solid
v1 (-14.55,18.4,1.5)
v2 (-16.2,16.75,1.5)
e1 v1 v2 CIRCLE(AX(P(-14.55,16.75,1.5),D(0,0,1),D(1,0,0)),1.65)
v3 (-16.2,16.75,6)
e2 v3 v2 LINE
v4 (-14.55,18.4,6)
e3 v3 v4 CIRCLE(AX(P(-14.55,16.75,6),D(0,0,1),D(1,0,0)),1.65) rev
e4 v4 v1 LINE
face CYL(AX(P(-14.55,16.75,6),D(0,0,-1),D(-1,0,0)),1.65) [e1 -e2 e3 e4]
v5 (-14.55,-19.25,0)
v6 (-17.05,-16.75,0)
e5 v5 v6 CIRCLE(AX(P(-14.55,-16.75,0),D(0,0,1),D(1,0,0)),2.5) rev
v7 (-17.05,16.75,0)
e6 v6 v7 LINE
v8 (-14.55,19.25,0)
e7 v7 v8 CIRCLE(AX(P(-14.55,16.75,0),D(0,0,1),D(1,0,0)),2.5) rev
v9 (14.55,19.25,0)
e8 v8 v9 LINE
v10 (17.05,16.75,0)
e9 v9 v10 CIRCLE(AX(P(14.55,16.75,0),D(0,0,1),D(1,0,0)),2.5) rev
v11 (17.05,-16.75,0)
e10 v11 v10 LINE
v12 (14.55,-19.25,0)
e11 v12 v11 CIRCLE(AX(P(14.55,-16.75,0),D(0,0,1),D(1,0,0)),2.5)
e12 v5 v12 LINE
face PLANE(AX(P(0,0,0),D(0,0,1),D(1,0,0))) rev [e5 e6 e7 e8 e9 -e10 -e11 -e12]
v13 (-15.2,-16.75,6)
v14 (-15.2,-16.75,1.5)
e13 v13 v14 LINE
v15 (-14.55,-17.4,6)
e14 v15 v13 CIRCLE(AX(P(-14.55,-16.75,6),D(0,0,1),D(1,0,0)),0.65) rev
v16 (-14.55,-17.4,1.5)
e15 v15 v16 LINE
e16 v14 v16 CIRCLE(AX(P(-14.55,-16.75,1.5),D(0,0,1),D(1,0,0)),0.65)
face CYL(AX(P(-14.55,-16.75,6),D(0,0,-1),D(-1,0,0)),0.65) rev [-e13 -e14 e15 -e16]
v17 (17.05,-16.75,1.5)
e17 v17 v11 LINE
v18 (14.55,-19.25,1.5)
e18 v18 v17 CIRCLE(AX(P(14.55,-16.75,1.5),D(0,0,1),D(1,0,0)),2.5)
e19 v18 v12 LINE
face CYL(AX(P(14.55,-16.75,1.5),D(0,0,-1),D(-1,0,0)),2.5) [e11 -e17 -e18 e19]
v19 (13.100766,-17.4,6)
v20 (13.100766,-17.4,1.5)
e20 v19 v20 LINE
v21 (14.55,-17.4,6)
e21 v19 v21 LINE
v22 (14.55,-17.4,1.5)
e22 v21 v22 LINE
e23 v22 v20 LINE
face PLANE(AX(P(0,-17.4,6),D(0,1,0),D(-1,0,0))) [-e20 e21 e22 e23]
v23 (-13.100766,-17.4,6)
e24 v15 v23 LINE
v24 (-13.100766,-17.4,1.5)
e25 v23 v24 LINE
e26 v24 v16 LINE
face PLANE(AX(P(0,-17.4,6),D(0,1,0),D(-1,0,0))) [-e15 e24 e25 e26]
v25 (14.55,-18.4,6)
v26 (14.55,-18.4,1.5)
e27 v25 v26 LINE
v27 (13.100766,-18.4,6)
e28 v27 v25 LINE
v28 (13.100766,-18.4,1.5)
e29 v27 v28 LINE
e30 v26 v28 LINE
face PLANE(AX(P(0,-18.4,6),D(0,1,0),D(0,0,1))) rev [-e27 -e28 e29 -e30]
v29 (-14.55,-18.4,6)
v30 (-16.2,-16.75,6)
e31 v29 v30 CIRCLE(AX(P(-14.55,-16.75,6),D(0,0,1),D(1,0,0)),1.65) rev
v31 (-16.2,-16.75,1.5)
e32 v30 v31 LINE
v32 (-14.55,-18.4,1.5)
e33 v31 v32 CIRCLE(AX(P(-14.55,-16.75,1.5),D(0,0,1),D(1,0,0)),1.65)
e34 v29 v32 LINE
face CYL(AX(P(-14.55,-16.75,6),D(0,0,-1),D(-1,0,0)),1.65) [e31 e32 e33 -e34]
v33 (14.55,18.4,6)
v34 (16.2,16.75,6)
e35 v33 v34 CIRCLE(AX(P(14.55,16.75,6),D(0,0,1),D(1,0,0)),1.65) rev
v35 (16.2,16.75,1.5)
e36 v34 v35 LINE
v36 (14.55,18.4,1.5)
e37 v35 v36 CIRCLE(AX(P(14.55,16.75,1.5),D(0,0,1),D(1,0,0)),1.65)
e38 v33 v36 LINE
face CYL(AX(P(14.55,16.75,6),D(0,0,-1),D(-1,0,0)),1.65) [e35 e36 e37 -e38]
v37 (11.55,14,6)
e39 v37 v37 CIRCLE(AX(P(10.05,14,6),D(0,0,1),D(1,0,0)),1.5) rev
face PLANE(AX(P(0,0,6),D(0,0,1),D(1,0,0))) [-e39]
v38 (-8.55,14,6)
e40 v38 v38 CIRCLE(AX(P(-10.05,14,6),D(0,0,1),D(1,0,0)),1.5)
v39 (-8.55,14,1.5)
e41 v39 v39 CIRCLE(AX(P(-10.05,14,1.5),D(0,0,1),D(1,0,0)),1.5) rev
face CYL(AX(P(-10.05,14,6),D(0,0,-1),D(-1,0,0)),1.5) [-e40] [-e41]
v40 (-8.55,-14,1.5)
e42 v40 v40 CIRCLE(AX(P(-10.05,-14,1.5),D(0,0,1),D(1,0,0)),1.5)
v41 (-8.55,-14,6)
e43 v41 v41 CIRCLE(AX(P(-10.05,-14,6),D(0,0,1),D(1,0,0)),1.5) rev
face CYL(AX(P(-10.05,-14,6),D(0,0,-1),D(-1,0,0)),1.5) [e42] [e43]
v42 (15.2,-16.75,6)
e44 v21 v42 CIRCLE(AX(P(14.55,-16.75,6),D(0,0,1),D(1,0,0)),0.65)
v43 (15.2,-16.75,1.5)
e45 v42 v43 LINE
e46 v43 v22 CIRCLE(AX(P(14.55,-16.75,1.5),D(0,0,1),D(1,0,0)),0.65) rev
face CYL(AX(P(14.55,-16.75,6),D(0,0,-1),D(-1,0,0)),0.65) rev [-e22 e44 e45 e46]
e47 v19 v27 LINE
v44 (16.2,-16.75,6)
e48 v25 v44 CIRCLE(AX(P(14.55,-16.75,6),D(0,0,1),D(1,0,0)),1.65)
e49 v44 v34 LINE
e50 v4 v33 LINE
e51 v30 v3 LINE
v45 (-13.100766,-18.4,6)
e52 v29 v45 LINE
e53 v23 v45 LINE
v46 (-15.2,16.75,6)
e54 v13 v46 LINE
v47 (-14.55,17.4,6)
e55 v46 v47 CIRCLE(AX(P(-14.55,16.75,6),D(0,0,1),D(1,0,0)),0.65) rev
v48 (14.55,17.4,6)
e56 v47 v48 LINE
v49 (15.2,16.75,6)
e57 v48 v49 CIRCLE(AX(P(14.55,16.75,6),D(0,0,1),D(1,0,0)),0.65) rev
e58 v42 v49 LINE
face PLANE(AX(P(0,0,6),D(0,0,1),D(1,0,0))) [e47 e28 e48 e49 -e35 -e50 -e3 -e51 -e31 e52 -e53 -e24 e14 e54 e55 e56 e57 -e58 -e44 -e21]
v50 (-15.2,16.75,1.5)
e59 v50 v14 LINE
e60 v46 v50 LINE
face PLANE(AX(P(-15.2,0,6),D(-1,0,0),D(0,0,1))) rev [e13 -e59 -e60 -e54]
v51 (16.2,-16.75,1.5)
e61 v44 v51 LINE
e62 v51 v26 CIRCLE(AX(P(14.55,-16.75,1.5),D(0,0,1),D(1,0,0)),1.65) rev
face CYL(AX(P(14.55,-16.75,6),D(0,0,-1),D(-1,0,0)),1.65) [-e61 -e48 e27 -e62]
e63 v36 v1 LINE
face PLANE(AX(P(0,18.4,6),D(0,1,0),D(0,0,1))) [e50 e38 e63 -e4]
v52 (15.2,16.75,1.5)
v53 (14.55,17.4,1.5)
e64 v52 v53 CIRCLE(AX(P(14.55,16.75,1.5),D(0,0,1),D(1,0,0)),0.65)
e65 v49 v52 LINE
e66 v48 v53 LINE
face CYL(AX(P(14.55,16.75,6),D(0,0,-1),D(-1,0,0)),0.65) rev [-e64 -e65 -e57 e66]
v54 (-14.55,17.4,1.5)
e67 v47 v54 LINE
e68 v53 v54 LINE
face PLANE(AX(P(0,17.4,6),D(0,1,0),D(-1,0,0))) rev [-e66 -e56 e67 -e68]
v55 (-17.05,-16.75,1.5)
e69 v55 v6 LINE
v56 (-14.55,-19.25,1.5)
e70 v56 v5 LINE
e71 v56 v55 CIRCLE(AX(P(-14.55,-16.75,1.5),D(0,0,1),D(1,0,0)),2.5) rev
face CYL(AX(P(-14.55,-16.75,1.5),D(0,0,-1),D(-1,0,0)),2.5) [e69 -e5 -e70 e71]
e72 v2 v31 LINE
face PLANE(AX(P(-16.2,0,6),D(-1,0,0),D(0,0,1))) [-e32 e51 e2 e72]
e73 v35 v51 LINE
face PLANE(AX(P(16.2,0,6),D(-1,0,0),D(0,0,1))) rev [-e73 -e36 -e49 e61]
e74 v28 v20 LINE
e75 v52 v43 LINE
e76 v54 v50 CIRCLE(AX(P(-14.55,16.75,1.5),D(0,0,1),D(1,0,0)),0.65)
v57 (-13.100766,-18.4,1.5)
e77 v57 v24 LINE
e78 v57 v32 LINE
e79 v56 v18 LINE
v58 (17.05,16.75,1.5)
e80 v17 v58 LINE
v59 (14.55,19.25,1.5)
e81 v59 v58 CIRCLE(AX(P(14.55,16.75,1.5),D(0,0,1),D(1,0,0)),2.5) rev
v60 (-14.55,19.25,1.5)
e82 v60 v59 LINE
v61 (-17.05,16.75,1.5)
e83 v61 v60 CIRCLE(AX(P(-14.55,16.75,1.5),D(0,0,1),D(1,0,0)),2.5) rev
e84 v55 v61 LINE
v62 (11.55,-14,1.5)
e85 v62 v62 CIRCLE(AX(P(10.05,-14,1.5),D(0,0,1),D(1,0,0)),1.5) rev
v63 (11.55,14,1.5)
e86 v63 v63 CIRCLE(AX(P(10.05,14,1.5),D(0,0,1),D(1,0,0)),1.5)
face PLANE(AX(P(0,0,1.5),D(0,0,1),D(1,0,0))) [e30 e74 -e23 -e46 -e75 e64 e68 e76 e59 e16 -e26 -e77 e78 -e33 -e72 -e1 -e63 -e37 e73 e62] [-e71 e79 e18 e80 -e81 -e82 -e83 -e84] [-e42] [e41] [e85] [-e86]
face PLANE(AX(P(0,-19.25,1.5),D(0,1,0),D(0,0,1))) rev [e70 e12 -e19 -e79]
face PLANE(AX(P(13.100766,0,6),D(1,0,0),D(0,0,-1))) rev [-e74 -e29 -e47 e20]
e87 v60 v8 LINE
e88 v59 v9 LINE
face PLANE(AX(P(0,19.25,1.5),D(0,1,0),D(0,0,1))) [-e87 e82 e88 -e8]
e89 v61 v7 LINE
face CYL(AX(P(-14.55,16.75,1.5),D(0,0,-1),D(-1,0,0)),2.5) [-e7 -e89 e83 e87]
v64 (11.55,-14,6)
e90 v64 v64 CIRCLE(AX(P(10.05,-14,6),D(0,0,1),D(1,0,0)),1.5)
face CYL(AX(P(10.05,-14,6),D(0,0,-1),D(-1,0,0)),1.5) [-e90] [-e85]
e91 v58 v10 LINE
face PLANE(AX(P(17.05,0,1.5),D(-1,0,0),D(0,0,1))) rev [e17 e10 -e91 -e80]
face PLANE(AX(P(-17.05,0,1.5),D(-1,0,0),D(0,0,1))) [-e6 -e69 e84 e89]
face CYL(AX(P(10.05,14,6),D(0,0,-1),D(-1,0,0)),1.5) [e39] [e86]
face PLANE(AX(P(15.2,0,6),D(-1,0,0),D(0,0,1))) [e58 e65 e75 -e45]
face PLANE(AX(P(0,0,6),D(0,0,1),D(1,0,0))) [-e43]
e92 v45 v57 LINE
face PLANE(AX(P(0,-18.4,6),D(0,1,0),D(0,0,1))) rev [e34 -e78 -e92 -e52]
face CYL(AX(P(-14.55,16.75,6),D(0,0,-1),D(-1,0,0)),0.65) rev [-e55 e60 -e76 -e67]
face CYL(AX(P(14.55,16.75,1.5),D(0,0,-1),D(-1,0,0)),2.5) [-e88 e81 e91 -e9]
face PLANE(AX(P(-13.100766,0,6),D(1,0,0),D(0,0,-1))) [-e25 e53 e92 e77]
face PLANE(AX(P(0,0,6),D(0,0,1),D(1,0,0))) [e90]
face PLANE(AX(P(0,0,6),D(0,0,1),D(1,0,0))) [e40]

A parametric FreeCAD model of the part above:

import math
import FreeCAD as App
import Part
import Sketcher
Q = App.Units.Quantity

doc = App.newDocument("Part")
body = doc.addObject("PartDesign::Body", "Body")

# Sketch on XY plane
sketch1 = body.newObject("Sketcher::SketchObject", "Sketch")
sketch1.AttachmentSupport = (doc.getObject("XY_Plane"), [""])
sketch1.MapMode = "FlatFace"
sketch1.addGeometry([
    Part.ArcOfCircle(Part.Circle(App.Vector(-14.6, 16.8, 0), App.Vector(0, 0, 1), 2.5), math.radians(90), math.radians(180)),  # 0
    Part.LineSegment(App.Vector(-17.1, 16.8, 0), App.Vector(-17.1, -16.8, 0)),  # 1
    Part.ArcOfCircle(Part.Circle(App.Vector(-14.6, -16.8, 0), App.Vector(0, 0, 1), 2.5), math.radians(180), math.radians(270)),  # 2
    Part.LineSegment(App.Vector(-14.6, -19.2, 0), App.Vector(14.6, -19.2, 0)),  # 3
    Part.ArcOfCircle(Part.Circle(App.Vector(14.6, -16.8, 0), App.Vector(0, 0, 1), 2.5), math.radians(-90), math.radians(0)),  # 4
    Part.LineSegment(App.Vector(17.1, -16.8, 0), App.Vector(17.1, 16.8, 0)),  # 5
    Part.ArcOfCircle(Part.Circle(App.Vector(14.6, 16.8, 0), App.Vector(0, 0, 1), 2.5), math.radians(0), math.radians(90)),  # 6
    Part.LineSegment(App.Vector(14.6, 19.2, 0), App.Vector(-14.6, 19.2, 0)),  # 7
], False)
sketch1.addConstraint([
    Sketcher.Constraint("Tangent", 0, 2, 1, 1),
    Sketcher.Constraint("Tangent", 1, 2, 2, 1),
    Sketcher.Constraint("Tangent", 2, 2, 3, 1),
    Sketcher.Constraint("Tangent", 3, 2, 4, 1),
    Sketcher.Constraint("Tangent", 4, 2, 5, 1),
    Sketcher.Constraint("Tangent", 5, 2, 6, 1),
    Sketcher.Constraint("Tangent", 6, 2, 7, 1),
    Sketcher.Constraint("Tangent", 7, 2, 0, 1),
    Sketcher.Constraint("Vertical", 1),
    Sketcher.Constraint("Horizontal", 3),
    Sketcher.Constraint("Vertical", 5),
    Sketcher.Constraint("Horizontal", 7),
    Sketcher.Constraint("Equal", 0, 2),
    Sketcher.Constraint("Equal", 2, 4),
    Sketcher.Constraint("Equal", 4, 6),
    Sketcher.Constraint("Symmetric", 0, 3, 4, 3, -1, 1),
    Sketcher.Constraint("Radius", 0, Q("2.5 mm")),
    Sketcher.Constraint("DistanceX", 3, 1, 3, 2, Q("29.1 mm")),
    Sketcher.Constraint("DistanceY", 1, 2, 1, 1, Q("33.5 mm")),
])
pad1 = body.newObject("PartDesign::Pad", "Pad")
pad1.Profile = sketch1
pad1.Length = 1.5

# Sketch on XY plane
sketch2 = body.newObject("Sketcher::SketchObject", "Sketch001")
sketch2.AttachmentSupport = (doc.getObject("XY_Plane"), [""])
sketch2.MapMode = "FlatFace"
sketch2.addGeometry([
    Part.LineSegment(App.Vector(-16.2, 16.8, 0), App.Vector(-16.2, -16.8, 0)),  # 0
    Part.ArcOfCircle(Part.Circle(App.Vector(-14.6, -16.8, 0), App.Vector(0, 0, 1), 1.6), math.radians(180), math.radians(270)),  # 1
    Part.LineSegment(App.Vector(-14.6, -18.4, 0), App.Vector(-13.1, -18.4, 0)),  # 2
    Part.LineSegment(App.Vector(-13.1, -18.4, 0), App.Vector(-13.1, -17.4, 0)),  # 3
    Part.LineSegment(App.Vector(-13.1, -17.4, 0), App.Vector(-14.6, -17.4, 0)),  # 4
    Part.ArcOfCircle(Part.Circle(App.Vector(-14.6, -16.8, 0), App.Vector(0, 0, 1), 0.6), math.radians(180), math.radians(270)),  # 5
    Part.LineSegment(App.Vector(-15.2, -16.8, 0), App.Vector(-15.2, 16.8, 0)),  # 6
    Part.ArcOfCircle(Part.Circle(App.Vector(-14.6, 16.8, 0), App.Vector(0, 0, 1), 0.6), math.radians(90), math.radians(180)),  # 7
    Part.LineSegment(App.Vector(-14.6, 17.4, 0), App.Vector(14.6, 17.4, 0)),  # 8
    Part.ArcOfCircle(Part.Circle(App.Vector(14.6, 16.8, 0), App.Vector(0, 0, 1), 0.6), math.radians(0), math.radians(90)),  # 9
    Part.LineSegment(App.Vector(15.2, 16.8, 0), App.Vector(15.2, -16.8, 0)),  # 10
    Part.ArcOfCircle(Part.Circle(App.Vector(14.6, -16.8, 0), App.Vector(0, 0, 1), 0.6), math.radians(-90), math.radians(0)),  # 11
    Part.LineSegment(App.Vector(14.6, -17.4, 0), App.Vector(13.1, -17.4, 0)),  # 12
    Part.LineSegment(App.Vector(13.1, -17.4, 0), App.Vector(13.1, -18.4, 0)),  # 13
    Part.LineSegment(App.Vector(13.1, -18.4, 0), App.Vector(14.6, -18.4, 0)),  # 14
    Part.ArcOfCircle(Part.Circle(App.Vector(14.6, -16.8, 0), App.Vector(0, 0, 1), 1.6), math.radians(-90), math.radians(0)),  # 15
    Part.LineSegment(App.Vector(16.2, -16.8, 0), App.Vector(16.2, 16.8, 0)),  # 16
    Part.ArcOfCircle(Part.Circle(App.Vector(14.6, 16.8, 0), App.Vector(0, 0, 1), 1.6), math.radians(0), math.radians(90)),  # 17
    Part.LineSegment(App.Vector(14.6, 18.4, 0), App.Vector(-14.6, 18.4, 0)),  # 18
    Part.ArcOfCircle(Part.Circle(App.Vector(-14.6, 16.8, 0), App.Vector(0, 0, 1), 1.6), math.radians(90), math.radians(180)),  # 19
    Part.Circle(App.Vector(-10.1, 14, 0), App.Vector(0, 0, 1), 1.5),  # 20
    Part.Circle(App.Vector(-10.1, -14, 0), App.Vector(0, 0, 1), 1.5),  # 21
    Part.Circle(App.Vector(10.1, -14, 0), App.Vector(0, 0, 1), 1.5),  # 22
    Part.Circle(App.Vector(10.1, 14, 0), App.Vector(0, 0, 1), 1.5),  # 23
], False)
sketch2.addConstraint([
    Sketcher.Constraint("Tangent", 0, 2, 1, 1),
    Sketcher.Constraint("Tangent", 1, 2, 2, 1),
    Sketcher.Constraint("Coincident", 2, 2, 3, 1),
    Sketcher.Constraint("Coincident", 3, 2, 4, 1),
    Sketcher.Constraint("Tangent", 4, 2, 5, 2),
    Sketcher.Constraint("Tangent", 5, 1, 6, 1),
    Sketcher.Constraint("Tangent", 6, 2, 7, 2),
    Sketcher.Constraint("Tangent", 7, 1, 8, 1),
    Sketcher.Constraint("Tangent", 8, 2, 9, 2),
    Sketcher.Constraint("Tangent", 9, 1, 10, 1),
    Sketcher.Constraint("Tangent", 10, 2, 11, 2),
    Sketcher.Constraint("Tangent", 11, 1, 12, 1),
    Sketcher.Constraint("Coincident", 12, 2, 13, 1),
    Sketcher.Constraint("Coincident", 13, 2, 14, 1),
    Sketcher.Constraint("Tangent", 14, 2, 15, 1),
    Sketcher.Constraint("Tangent", 15, 2, 16, 1),
    Sketcher.Constraint("Tangent", 16, 2, 17, 1),
    Sketcher.Constraint("Tangent", 17, 2, 18, 1),
    Sketcher.Constraint("Tangent", 18, 2, 19, 1),
    Sketcher.Constraint("Tangent", 19, 2, 0, 1),
    Sketcher.Constraint("Vertical", 0),
    Sketcher.Constraint("Horizontal", 2),
    Sketcher.Constraint("Vertical", 3),
    Sketcher.Constraint("Horizontal", 4),
    Sketcher.Constraint("Vertical", 6),
    Sketcher.Constraint("Horizontal", 8),
    Sketcher.Constraint("Vertical", 10),
    Sketcher.Constraint("Horizontal", 12),
    Sketcher.Constraint("Vertical", 13),
    Sketcher.Constraint("Horizontal", 14),
    Sketcher.Constraint("Vertical", 16),
    Sketcher.Constraint("Horizontal", 18),
    Sketcher.Constraint("Coincident", 5, 3, 1, 3),
    Sketcher.Constraint("Coincident", 15, 3, 11, 3),
    Sketcher.Constraint("Coincident", 17, 3, 9, 3),
    Sketcher.Constraint("Coincident", 19, 3, 7, 3),
    Sketcher.Constraint("Equal", 5, 7),
    Sketcher.Constraint("Equal", 7, 9),
    Sketcher.Constraint("Equal", 9, 11),
    Sketcher.Constraint("Equal", 20, 21),
    Sketcher.Constraint("Equal", 21, 22),
    Sketcher.Constraint("Equal", 22, 23),
    Sketcher.Constraint("Symmetric", 1, 3, 9, 3, -1, 1),
    Sketcher.Constraint("Symmetric", 20, 3, 22, 3, -1, 1),
    Sketcher.Constraint("Symmetric", 21, 3, 23, 3, -1, 1),
    Sketcher.Constraint("Symmetric", 21, 3, 22, 3, -2),
    Sketcher.Constraint("Symmetric", 3, 2, 12, 2, -2),
    Sketcher.Constraint("Diameter", 20, Q("3 mm")),
    Sketcher.Constraint("DistanceY", 3, 1, 3, 2, Q("1 mm")),
    Sketcher.Constraint("Radius", 1, Q("1.65 mm")),
    Sketcher.Constraint("DistanceX", 8, 1, 8, 2, Q("29.1 mm")),
    Sketcher.Constraint("DistanceY", 0, 2, 0, 1, Q("33.5 mm")),
    Sketcher.Constraint("DistanceY", -1, 1, 20, 3, Q("14 mm")),
    Sketcher.Constraint("DistanceX", 19, 3, 20, 3, Q("4.5 mm")),
    Sketcher.Constraint("DistanceX", 2, 1, 2, 2, Q("1.449234 mm")),
])
pad2 = body.newObject("PartDesign::Pad", "Pad001")
pad2.Profile = sketch2
pad2.Length = 6

doc.recompute()
